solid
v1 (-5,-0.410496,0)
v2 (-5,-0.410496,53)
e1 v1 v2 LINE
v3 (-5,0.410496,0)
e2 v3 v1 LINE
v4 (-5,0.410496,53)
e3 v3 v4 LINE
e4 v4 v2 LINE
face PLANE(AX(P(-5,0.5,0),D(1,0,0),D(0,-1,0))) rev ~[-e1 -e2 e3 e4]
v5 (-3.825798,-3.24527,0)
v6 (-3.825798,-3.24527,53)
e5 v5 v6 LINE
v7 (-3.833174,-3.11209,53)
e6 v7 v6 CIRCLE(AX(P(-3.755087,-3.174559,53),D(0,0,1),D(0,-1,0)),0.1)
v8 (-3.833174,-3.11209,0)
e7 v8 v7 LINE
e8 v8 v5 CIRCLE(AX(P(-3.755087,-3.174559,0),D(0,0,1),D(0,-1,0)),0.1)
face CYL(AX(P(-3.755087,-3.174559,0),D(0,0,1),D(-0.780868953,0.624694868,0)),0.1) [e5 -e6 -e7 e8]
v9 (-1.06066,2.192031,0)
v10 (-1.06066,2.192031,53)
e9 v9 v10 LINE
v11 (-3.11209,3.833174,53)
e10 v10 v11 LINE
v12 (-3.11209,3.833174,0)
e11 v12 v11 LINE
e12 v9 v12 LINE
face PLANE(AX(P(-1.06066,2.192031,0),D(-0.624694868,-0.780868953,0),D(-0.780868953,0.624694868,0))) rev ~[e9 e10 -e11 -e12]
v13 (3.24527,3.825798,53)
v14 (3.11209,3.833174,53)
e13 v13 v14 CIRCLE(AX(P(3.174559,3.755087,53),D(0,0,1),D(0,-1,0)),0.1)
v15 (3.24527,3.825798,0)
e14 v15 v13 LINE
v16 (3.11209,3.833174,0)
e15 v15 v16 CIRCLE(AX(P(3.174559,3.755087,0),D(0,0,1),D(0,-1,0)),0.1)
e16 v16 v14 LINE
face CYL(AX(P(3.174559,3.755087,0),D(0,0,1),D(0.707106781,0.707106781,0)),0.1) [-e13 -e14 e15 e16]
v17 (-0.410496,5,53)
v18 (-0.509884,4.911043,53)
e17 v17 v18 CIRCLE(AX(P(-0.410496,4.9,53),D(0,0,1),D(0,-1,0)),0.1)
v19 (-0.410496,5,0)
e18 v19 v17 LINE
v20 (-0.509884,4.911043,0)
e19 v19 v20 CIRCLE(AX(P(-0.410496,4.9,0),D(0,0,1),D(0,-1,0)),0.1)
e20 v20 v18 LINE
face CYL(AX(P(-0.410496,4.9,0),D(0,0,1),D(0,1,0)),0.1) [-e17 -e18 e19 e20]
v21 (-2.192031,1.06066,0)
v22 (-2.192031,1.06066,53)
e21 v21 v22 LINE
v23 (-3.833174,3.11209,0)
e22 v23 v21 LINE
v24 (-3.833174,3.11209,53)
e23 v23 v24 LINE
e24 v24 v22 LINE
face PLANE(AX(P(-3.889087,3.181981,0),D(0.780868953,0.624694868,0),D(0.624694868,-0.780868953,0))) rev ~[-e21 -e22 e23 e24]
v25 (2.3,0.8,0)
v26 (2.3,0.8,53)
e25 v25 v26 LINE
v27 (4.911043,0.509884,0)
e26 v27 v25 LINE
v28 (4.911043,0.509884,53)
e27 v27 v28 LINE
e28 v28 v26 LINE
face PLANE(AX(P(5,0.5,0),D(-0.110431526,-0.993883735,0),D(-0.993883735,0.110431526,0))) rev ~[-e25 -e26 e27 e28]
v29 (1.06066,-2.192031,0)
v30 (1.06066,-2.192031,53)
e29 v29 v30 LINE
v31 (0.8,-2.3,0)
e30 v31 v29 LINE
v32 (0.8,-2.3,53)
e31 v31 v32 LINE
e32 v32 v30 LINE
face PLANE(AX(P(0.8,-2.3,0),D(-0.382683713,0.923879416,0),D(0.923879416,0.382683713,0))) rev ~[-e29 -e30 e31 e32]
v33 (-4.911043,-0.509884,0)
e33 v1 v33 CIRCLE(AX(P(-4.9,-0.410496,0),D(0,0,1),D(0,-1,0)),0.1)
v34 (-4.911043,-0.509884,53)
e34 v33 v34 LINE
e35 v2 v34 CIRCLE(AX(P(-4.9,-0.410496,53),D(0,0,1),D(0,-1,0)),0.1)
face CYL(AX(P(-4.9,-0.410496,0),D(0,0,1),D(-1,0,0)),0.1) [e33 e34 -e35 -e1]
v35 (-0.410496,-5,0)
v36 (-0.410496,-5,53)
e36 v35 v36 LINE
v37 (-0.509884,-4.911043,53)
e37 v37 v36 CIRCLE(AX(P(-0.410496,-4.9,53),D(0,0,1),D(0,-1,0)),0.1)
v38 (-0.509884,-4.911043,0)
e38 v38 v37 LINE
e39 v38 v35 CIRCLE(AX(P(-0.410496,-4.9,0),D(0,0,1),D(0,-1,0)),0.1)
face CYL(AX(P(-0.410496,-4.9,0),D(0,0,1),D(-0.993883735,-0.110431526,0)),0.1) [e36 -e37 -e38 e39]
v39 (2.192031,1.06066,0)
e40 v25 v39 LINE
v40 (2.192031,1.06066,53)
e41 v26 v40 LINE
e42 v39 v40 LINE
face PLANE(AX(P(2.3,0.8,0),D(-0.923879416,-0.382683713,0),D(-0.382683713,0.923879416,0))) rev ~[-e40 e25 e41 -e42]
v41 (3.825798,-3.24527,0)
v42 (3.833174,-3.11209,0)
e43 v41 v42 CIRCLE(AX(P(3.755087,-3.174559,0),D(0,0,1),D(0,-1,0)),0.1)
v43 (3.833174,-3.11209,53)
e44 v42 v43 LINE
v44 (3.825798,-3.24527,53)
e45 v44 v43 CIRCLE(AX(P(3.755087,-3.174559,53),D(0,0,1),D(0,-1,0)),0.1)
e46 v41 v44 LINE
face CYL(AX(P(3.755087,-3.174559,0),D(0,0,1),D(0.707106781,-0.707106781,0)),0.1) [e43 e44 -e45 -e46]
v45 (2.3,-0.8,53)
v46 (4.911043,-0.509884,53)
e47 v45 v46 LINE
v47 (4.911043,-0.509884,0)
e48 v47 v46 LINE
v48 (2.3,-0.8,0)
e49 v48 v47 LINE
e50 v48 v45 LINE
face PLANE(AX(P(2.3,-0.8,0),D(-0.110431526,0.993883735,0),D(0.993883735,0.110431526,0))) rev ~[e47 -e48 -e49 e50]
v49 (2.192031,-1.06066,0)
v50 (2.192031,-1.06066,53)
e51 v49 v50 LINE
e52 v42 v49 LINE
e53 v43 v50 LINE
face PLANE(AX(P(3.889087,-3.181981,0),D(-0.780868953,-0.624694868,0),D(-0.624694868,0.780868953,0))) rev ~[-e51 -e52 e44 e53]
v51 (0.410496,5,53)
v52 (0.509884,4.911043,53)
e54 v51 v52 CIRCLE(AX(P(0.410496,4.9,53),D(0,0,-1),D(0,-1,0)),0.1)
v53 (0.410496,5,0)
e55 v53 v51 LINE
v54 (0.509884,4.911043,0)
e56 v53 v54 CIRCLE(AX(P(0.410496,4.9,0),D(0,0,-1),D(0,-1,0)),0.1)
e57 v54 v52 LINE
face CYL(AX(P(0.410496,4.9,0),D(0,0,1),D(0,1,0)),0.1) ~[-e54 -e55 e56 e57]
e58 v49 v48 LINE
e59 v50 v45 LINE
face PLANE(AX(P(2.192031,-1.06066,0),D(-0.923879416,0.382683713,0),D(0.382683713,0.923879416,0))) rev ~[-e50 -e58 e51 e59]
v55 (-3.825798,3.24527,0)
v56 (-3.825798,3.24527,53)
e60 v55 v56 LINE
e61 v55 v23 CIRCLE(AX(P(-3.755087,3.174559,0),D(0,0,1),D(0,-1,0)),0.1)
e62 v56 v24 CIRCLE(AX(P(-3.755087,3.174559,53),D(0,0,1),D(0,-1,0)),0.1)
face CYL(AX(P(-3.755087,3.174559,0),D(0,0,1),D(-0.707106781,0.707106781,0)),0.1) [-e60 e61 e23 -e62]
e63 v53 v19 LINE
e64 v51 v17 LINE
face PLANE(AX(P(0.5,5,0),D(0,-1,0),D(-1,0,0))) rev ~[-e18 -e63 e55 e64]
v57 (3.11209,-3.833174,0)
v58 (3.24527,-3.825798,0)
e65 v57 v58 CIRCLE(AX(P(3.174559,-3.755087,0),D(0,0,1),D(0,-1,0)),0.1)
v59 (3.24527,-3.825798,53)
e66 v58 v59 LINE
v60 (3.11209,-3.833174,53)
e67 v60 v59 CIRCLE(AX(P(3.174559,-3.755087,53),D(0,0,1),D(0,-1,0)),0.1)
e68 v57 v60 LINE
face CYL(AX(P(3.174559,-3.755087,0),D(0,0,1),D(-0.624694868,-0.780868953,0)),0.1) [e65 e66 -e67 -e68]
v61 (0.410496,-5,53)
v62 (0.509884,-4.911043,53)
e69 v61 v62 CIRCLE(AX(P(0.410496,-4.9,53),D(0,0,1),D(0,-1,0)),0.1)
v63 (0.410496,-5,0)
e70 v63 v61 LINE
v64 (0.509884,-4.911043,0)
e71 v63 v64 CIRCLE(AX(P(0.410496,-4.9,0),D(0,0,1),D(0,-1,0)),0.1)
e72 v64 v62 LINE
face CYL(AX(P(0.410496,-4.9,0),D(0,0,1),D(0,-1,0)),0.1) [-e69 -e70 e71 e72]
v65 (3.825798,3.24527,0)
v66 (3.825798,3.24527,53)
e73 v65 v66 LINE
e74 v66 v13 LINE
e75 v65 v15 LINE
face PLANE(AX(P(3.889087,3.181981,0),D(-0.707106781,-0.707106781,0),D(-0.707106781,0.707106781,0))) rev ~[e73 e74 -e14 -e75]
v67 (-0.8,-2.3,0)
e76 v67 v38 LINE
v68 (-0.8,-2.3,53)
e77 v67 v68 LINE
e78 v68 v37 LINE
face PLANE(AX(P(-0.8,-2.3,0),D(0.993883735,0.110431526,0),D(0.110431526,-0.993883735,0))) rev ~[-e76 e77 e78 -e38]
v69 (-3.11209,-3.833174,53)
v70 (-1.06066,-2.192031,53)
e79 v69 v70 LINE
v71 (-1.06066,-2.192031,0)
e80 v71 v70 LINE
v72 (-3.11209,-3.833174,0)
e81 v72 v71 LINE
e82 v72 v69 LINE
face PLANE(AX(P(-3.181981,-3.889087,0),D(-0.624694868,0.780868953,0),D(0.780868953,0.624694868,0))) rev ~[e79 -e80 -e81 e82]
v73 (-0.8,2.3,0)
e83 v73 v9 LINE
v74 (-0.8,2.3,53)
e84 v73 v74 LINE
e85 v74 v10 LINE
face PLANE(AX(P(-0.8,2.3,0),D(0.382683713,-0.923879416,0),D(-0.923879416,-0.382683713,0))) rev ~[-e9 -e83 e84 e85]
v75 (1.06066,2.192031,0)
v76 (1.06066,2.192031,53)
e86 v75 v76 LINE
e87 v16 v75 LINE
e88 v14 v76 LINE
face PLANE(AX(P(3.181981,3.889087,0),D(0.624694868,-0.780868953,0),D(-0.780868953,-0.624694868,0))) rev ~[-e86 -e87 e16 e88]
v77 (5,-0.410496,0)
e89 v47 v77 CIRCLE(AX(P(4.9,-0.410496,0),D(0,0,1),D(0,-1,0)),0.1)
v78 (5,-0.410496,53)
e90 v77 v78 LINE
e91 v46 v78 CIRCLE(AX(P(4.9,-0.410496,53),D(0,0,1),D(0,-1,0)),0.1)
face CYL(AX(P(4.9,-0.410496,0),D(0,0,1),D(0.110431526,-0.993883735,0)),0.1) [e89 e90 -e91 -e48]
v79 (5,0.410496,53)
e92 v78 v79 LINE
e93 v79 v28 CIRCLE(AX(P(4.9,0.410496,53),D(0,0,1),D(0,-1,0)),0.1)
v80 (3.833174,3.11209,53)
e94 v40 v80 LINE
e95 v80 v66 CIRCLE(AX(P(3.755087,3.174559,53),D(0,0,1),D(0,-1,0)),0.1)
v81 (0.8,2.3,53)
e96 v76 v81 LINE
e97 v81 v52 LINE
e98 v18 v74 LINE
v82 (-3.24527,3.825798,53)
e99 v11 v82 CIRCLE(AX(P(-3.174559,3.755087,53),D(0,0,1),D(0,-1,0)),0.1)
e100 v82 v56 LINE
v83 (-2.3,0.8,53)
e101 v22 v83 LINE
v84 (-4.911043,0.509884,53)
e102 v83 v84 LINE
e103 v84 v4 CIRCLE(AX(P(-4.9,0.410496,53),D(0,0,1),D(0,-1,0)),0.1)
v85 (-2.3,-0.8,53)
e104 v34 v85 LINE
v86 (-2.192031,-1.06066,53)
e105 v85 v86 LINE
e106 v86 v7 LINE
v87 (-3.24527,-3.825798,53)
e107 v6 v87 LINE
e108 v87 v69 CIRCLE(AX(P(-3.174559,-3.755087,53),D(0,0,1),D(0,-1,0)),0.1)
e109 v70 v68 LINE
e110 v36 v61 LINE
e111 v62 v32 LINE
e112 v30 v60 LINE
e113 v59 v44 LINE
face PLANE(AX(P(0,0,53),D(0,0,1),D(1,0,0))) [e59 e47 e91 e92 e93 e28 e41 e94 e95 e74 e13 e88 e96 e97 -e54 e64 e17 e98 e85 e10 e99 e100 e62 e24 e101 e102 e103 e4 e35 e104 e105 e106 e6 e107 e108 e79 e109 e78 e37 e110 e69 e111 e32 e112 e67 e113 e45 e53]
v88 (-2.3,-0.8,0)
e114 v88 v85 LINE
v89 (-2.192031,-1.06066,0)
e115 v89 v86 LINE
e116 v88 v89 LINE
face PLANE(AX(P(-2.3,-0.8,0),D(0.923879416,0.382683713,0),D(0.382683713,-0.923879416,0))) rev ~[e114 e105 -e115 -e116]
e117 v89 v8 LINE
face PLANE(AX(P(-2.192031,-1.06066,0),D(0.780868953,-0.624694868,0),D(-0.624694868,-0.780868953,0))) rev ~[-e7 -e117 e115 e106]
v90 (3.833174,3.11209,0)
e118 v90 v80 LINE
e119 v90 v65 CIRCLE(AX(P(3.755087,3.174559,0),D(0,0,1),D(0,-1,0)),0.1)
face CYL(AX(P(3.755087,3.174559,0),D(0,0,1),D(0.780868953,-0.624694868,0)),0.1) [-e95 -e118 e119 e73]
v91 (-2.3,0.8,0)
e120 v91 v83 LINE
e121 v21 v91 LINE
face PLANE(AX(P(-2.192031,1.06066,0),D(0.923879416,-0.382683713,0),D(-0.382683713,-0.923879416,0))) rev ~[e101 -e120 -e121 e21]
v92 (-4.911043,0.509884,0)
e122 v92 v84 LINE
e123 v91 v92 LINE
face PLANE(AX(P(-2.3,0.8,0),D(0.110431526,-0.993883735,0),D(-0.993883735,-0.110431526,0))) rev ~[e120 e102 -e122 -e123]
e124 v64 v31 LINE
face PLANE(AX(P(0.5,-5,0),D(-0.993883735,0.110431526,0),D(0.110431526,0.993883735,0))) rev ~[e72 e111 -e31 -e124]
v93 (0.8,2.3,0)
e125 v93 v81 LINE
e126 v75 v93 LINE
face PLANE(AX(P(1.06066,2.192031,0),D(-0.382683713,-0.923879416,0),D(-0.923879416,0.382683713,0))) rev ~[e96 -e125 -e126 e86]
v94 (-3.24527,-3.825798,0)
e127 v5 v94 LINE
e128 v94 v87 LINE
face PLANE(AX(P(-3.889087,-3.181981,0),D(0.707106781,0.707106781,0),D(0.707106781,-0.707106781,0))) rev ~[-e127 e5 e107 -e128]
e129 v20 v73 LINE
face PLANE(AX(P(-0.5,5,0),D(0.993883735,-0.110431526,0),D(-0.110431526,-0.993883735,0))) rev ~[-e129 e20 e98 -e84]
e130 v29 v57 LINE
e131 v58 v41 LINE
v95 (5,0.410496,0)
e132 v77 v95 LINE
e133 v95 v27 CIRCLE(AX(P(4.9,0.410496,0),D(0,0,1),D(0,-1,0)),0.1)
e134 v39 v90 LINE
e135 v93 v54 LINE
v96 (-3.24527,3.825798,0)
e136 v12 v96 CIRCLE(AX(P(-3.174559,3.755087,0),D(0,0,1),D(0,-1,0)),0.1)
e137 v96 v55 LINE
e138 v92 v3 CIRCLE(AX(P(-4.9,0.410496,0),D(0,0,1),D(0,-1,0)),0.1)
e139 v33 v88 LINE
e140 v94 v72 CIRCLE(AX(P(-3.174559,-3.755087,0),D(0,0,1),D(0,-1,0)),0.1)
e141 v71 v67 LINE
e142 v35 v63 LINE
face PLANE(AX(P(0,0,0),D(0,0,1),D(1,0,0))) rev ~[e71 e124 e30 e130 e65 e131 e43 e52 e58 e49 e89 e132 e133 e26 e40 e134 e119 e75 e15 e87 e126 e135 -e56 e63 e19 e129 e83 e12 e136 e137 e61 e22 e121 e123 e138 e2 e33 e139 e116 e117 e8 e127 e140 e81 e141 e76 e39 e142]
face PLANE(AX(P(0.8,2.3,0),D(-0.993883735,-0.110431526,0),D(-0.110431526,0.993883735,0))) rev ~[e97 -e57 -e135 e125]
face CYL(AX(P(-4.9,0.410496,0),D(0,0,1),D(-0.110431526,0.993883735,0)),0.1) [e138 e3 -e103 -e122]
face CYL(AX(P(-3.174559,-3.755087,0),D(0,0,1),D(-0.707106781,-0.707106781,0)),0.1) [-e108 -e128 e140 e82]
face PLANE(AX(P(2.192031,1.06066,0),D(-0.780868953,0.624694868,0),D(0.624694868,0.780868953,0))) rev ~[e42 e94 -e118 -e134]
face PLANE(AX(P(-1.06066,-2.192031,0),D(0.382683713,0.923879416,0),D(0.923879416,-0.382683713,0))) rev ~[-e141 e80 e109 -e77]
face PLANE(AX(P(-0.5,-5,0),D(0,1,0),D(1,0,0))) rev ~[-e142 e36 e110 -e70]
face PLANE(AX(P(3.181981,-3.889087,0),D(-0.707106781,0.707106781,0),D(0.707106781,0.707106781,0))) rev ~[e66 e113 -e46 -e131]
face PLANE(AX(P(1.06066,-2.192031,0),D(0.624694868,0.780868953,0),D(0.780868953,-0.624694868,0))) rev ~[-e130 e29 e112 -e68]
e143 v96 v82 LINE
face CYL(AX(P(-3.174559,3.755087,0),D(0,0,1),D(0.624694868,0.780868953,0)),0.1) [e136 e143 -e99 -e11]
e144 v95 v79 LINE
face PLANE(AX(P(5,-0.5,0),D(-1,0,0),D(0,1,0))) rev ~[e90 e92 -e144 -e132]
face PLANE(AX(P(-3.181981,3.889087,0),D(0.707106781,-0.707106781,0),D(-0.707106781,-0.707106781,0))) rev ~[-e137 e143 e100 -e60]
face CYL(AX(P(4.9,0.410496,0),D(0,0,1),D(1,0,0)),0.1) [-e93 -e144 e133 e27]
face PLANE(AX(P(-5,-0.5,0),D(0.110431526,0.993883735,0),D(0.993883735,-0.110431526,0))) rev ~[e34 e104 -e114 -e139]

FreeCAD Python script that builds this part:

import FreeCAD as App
import Part
import Sketcher
Q = App.Units.Quantity


def edges_at(feature, points):
    """Names of the edges that pass closest to the given points."""
    edges = feature.Shape.Edges
    near = lambda p: min(range(len(edges)), key=lambda i: edges[i].distToShape(Part.Vertex(*p))[0])
    return sorted({f"Edge{near(p) + 1}" for p in points})


def add_polygon(sketch, points):
    """Adds a closed chain of lines whose ends are joined by coincident constraints."""
    first, n = sketch.GeometryCount, len(points)
    for a, b in zip(points, points[1:] + points[:1]):
        sketch.addGeometry(Part.LineSegment(App.Vector(*a, 0), App.Vector(*b, 0)), False)
    for i in range(n):
        sketch.addConstraint(Sketcher.Constraint("Coincident", first + i, 2, first + (i + 1) % n, 1))

doc = App.newDocument("Part")
body = doc.addObject("PartDesign::Body", "Body")

# Sketch on XY plane
sketch1 = doc.addObject("Sketcher::SketchObject", "Sketch")
body.addObject(sketch1)
sketch1.AttachmentSupport = (doc.XY_Plane, [""])
sketch1.MapMode = "FlatFace"
add_polygon(sketch1, [(0.5, 5), (-0.5, 5), (-0.8, 2.3), (-1.06, 2.19), (-3.18, 3.89), (-3.89, 3.18), (-2.19, 1.06), (-2.3, 0.8), (-5, 0.5), (-5, -0.5), (-2.3, -0.8), (-2.19, -1.06), (-3.89, -3.18), (-3.18, -3.89), (-1.06, -2.19), (-0.8, -2.3), (-0.5, -5), (0.5, -5), (0.8, -2.3), (1.06, -2.19), (3.18, -3.89), (3.89, -3.18), (2.19, -1.06), (2.3, -0.8), (5, -0.5), (5, 0.5), (2.3, 0.8), (2.19, 1.06), (3.89, 3.18), (3.18, 3.89), (1.06, 2.19), (0.8, 2.3)])  # lines 0-31
sketch1.addConstraint([
    Sketcher.Constraint("Horizontal", 0),
    Sketcher.Constraint("Vertical", 8),
    Sketcher.Constraint("Horizontal", 16),
    Sketcher.Constraint("Vertical", 24),
    Sketcher.Constraint("Symmetric", 0, 2, 16, 2, -1, 1),
    Sketcher.Constraint("Symmetric", 1, 2, 17, 2, -1, 1),
    Sketcher.Constraint("Symmetric", 2, 2, 18, 2, -1, 1),
    Sketcher.Constraint("Symmetric", 3, 2, 19, 2, -1, 1),
    Sketcher.Constraint("Symmetric", 4, 2, 20, 2, -1, 1),
    Sketcher.Constraint("Symmetric", 5, 2, 21, 2, -1, 1),
    Sketcher.Constraint("Symmetric", 6, 2, 22, 2, -1, 1),
    Sketcher.Constraint("Symmetric", 7, 2, 23, 2, -1, 1),
    Sketcher.Constraint("Symmetric", 9, 2, 25, 2, -1, 1),
    Sketcher.Constraint("Symmetric", 10, 2, 26, 2, -1, 1),
    Sketcher.Constraint("Symmetric", 11, 2, 27, 2, -1, 1),
    Sketcher.Constraint("Symmetric", 12, 2, 28, 2, -1, 1),
    Sketcher.Constraint("Symmetric", 13, 2, 29, 2, -1, 1),
    Sketcher.Constraint("Symmetric", 14, 2, 30, 2, -1, 1),
    Sketcher.Constraint("Symmetric", 14, 2, 17, 2, -2),
    Sketcher.Constraint("Symmetric", 13, 2, 18, 2, -2),
    Sketcher.Constraint("Symmetric", 12, 2, 19, 2, -2),
    Sketcher.Constraint("Symmetric", 11, 2, 20, 2, -2),
    Sketcher.Constraint("Symmetric", 10, 2, 21, 2, -2),
    Sketcher.Constraint("Symmetric", 9, 2, 22, 2, -2),
    Sketcher.Constraint("Perpendicular", 1, 9),
    Sketcher.Constraint("Perpendicular", 2, 10),
    Sketcher.Constraint("Perpendicular", 3, 11),
    Sketcher.Constraint("Perpendicular", 4, 12),
    Sketcher.Constraint("Perpendicular", 7, 15),
    Sketcher.Constraint("Perpendicular", 17, 25),
    Sketcher.Constraint("Perpendicular", 23, 31),
    Sketcher.Constraint("Horizontal", 8, 2, 23, 2),
    Sketcher.Constraint("Equal", 16, 8),
    Sketcher.Constraint("Equal", 1, 3),
    Sketcher.Constraint("Equal", 3, 5),
    Sketcher.Constraint("Equal", 2, 6),
    Sketcher.Constraint("Equal", 5, 7),
    Sketcher.Constraint("DistanceX", 0, 2, 0, 1, 1.0),
    Sketcher.Constraint("Distance", 4, 0.999999),
    Sketcher.Constraint("DistanceY", -1, 1, 0, 2, 5.0),
    Sketcher.Constraint("Angle", 2, Q("-157.499983 deg")),
    Sketcher.Constraint("DistanceX", 1, 2, -1, 1, 0.8),
    Sketcher.Constraint("DistanceY", -1, 1, 1, 2, 2.3),
    Sketcher.Constraint("DistanceX", 2, 2, -1, 1, 1.06066),
])
pad1 = doc.addObject("PartDesign::Pad", "Pad")
body.addObject(pad1)
pad1.Profile = sketch1
pad1.Length = 53
doc.recompute()

fillet = doc.addObject("PartDesign::Fillet", "Fillet")
body.addObject(fillet)
fillet.Base = (pad1, edges_at(pad1, [
    (3.889, 3.182, 26.5),
    (3.182, 3.889, 26.5),
    (5, 0.5, 26.5),
    (5, -0.5, 26.5),
    (3.889, -3.182, 26.5),
    (3.182, -3.889, 26.5),
    (-3.889, -3.182, 26.5),
    (-3.182, -3.889, 26.5),
    (-0.5, -5, 26.5),
    (0.5, -5, 26.5),
    (-5, -0.5, 26.5),
    (-5, 0.5, 26.5),
    (-3.889, 3.182, 26.5),
    (-3.182, 3.889, 26.5),
    (-0.5, 5, 26.5),
    (0.5, 5, 26.5),
]))
fillet.Radius = 0.1
body2 = doc.addObject("PartDesign::Body", "Body001")

# Sketch on XY plane
sketch2 = doc.addObject("Sketcher::SketchObject", "Sketch001")
body2.addObject(sketch2)
sketch2.AttachmentSupport = (doc.getObject("XY_Plane001"), [""])
sketch2.MapMode = "FlatFace"
sketch2.addGeometry(Part.Circle(App.Vector(0, 0, 0), App.Vector(0, 0, 1), 1.4), False)
sketch2.addConstraint([
    Sketcher.Constraint("Coincident", 0, 3, -1, 1),
    Sketcher.Constraint("Diameter", 0, 2.8077),
])
pad2 = doc.addObject("PartDesign::Pad", "Pad001")
body2.addObject(pad2)
pad2.Profile = sketch2
pad2.Length = 10
pad2.Reversed = True
body2.Visibility = False

doc.recompute()
